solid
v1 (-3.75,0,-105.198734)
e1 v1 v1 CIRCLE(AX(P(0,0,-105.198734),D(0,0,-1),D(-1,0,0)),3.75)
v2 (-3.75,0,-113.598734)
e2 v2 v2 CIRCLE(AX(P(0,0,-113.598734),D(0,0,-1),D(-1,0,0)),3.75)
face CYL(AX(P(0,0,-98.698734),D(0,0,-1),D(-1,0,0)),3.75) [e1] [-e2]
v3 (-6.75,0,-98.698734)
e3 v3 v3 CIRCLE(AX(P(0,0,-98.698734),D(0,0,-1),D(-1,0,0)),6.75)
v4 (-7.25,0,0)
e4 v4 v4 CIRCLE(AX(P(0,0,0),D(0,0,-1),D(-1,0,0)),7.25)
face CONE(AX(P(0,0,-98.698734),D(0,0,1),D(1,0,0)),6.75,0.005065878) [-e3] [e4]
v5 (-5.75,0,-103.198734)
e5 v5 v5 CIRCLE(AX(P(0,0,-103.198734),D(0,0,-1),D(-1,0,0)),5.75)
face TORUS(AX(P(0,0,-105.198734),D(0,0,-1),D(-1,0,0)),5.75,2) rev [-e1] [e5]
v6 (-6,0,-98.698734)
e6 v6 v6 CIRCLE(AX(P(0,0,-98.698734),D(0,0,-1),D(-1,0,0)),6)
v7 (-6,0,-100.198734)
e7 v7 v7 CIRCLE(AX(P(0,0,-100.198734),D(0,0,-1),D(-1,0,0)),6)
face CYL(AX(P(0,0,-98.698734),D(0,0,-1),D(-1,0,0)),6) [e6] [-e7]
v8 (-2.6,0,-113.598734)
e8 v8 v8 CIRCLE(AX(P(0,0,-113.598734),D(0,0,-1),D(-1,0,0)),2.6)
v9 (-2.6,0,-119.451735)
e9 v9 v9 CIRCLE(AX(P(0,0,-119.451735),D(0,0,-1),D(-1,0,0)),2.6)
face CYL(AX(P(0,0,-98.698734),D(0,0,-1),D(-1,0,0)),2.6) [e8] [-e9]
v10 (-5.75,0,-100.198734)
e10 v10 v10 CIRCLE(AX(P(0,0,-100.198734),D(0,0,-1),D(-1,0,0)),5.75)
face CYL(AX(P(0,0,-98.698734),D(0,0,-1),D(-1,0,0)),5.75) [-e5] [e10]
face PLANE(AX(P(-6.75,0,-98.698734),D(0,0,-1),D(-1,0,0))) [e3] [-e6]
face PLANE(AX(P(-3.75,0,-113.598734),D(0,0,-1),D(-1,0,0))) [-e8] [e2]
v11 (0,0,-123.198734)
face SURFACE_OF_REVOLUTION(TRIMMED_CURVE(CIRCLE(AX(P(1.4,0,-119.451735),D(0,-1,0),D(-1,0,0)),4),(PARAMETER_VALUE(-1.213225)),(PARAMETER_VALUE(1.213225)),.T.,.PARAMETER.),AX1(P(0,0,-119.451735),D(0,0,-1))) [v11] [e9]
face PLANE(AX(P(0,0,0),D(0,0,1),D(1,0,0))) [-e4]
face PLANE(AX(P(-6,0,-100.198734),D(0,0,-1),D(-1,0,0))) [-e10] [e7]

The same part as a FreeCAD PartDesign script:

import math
import FreeCAD as App
import Part
import Sketcher
Q = App.Units.Quantity


def add_polygon(sketch, points):
    """Adds a closed chain of lines whose ends are joined by coincident constraints."""
    first, n = sketch.GeometryCount, len(points)
    for a, b in zip(points, points[1:] + points[:1]):
        sketch.addGeometry(Part.LineSegment(App.Vector(*a, 0), App.Vector(*b, 0)), False)
    for i in range(n):
        sketch.addConstraint(Sketcher.Constraint("Coincident", first + i, 2, first + (i + 1) % n, 1))

doc = App.newDocument("Part")
body = doc.addObject("PartDesign::Body", "Body")

# Sketch on XZ plane
sketch1 = body.newObject("Sketcher::SketchObject", "Sketch")
sketch1.AttachmentSupport = (doc.getObject("XZ_Plane"), [""])
sketch1.MapMode = "FlatFace"
add_polygon(sketch1, [(-7, 0), (0, 0), (0, -99), (-7, -99)])  # lines 0-3
sketch1.addConstraint(Sketcher.Constraint("Horizontal", 0))
sketch1.addConstraint(Sketcher.Constraint("Vertical", 1))
sketch1.addConstraint(Sketcher.Constraint("Horizontal", 2))
sketch1.addConstraint(Sketcher.Constraint("Coincident", 0, 2, -1, 1))
sketch1.addConstraint(Sketcher.Constraint("Distance", 3, Q("98.7 mm")))
sketch1.addConstraint(Sketcher.Constraint("DistanceX", 0, 1, 0, 2, Q("7.25 mm")))
sketch1.addConstraint(Sketcher.Constraint("DistanceX", 2, 2, 2, 1, Q("6.75 mm")))
revolution = body.newObject("PartDesign::Revolution", "Revolution")
revolution.Profile = sketch1
revolution.ReferenceAxis = (sketch1, ["V_Axis"])
revolution.Angle = 360

# Sketch on XZ plane
sketch2 = body.newObject("Sketcher::SketchObject", "Sketch001")
sketch2.AttachmentSupport = (doc.getObject("XZ_Plane"), [""])
sketch2.MapMode = "FlatFace"
sketch2.addGeometry(Part.LineSegment(App.Vector(-6, -100.2, 0), App.Vector(-6, -98.7, 0)), False)
sketch2.addGeometry(Part.LineSegment(App.Vector(-6, -98.7, 0), App.Vector(0, -98.7, 0)), False)
sketch2.addGeometry(Part.LineSegment(App.Vector(0, -98.7, 0), App.Vector(0, -123.2, 0)), False)
sketch2.addGeometry(Part.ArcOfCircle(Part.Circle(App.Vector(1.4, -119.45, 0), App.Vector(0, 0, 1), 4), math.radians(180), math.radians(250)), False)
sketch2.addGeometry(Part.LineSegment(App.Vector(-2.6, -119.45, 0), App.Vector(-2.6, -113.6, 0)), False)
sketch2.addGeometry(Part.LineSegment(App.Vector(-2.6, -113.6, 0), App.Vector(-3.75, -113.6, 0)), False)
sketch2.addGeometry(Part.LineSegment(App.Vector(-3.75, -113.6, 0), App.Vector(-3.75, -105.2, 0)), False)
sketch2.addGeometry(Part.ArcOfCircle(Part.Circle(App.Vector(-5.75, -105.2, 0), App.Vector(0, 0, 1), 2), math.radians(0), math.radians(90)), False)
sketch2.addGeometry(Part.LineSegment(App.Vector(-5.75, -103.2, 0), App.Vector(-5.75, -100.2, 0)), False)
sketch2.addGeometry(Part.LineSegment(App.Vector(-5.75, -100.2, 0), App.Vector(-6, -100.2, 0)), False)
sketch2.addConstraint(Sketcher.Constraint("Coincident", 0, 2, 1, 1))
sketch2.addConstraint(Sketcher.Constraint("Coincident", 1, 2, 2, 1))
sketch2.addConstraint(Sketcher.Constraint("Coincident", 2, 2, 3, 2))
sketch2.addConstraint(Sketcher.Constraint("Tangent", 3, 1, 4, 1))
sketch2.addConstraint(Sketcher.Constraint("Coincident", 4, 2, 5, 1))
sketch2.addConstraint(Sketcher.Constraint("Coincident", 5, 2, 6, 1))
sketch2.addConstraint(Sketcher.Constraint("Tangent", 6, 2, 7, 1))
sketch2.addConstraint(Sketcher.Constraint("Coincident", 7, 2, 8, 1))
sketch2.addConstraint(Sketcher.Constraint("Coincident", 8, 2, 9, 1))
sketch2.addConstraint(Sketcher.Constraint("Coincident", 9, 2, 0, 1))
sketch2.addConstraint(Sketcher.Constraint("Vertical", 0))
sketch2.addConstraint(Sketcher.Constraint("Horizontal", 1))
sketch2.addConstraint(Sketcher.Constraint("Vertical", 2))
sketch2.addConstraint(Sketcher.Constraint("Vertical", 4))
sketch2.addConstraint(Sketcher.Constraint("Horizontal", 5))
sketch2.addConstraint(Sketcher.Constraint("Vertical", 6))
sketch2.addConstraint(Sketcher.Constraint("Vertical", 8))
sketch2.addConstraint(Sketcher.Constraint("Horizontal", 9))
sketch2.addConstraint(Sketcher.Constraint("PointOnObject", 1, 2, -2))
sketch2.addConstraint(Sketcher.Constraint("Radius", 3, Q("4 mm")))
sketch2.addConstraint(Sketcher.Constraint("Radius", 7, Q("2 mm")))
sketch2.addConstraint(Sketcher.Constraint("DistanceX", 1, 1, 1, 2, Q("6 mm")))
sketch2.addConstraint(Sketcher.Constraint("DistanceY", 8, 1, 8, 2, Q("3 mm")))
sketch2.addConstraint(Sketcher.Constraint("DistanceY", 0, 1, 0, 2, Q("1.5 mm")))
sketch2.addConstraint(Sketcher.Constraint("DistanceY", 2, 2, 2, 1, Q("24.5 mm")))
sketch2.addConstraint(Sketcher.Constraint("DistanceY", 6, 1, 6, 2, Q("8.4 mm")))
sketch2.addConstraint(Sketcher.Constraint("DistanceX", 7, 2, 6, 2, Q("2 mm")))
sketch2.addConstraint(Sketcher.Constraint("DistanceX", 5, 2, 5, 1, Q("1.15 mm")))
sketch2.addConstraint(Sketcher.Constraint("DistanceX", 9, 2, 9, 1, Q("0.25 mm")))
sketch2.addConstraint(Sketcher.Constraint("DistanceY", 3, 3, -1, 1, Q("119.451735 mm")))
revolution2 = body.newObject("PartDesign::Revolution", "Revolution001")
revolution2.Profile = sketch2
revolution2.ReferenceAxis = (sketch2, ["V_Axis"])
revolution2.Angle = 360

doc.recompute()
